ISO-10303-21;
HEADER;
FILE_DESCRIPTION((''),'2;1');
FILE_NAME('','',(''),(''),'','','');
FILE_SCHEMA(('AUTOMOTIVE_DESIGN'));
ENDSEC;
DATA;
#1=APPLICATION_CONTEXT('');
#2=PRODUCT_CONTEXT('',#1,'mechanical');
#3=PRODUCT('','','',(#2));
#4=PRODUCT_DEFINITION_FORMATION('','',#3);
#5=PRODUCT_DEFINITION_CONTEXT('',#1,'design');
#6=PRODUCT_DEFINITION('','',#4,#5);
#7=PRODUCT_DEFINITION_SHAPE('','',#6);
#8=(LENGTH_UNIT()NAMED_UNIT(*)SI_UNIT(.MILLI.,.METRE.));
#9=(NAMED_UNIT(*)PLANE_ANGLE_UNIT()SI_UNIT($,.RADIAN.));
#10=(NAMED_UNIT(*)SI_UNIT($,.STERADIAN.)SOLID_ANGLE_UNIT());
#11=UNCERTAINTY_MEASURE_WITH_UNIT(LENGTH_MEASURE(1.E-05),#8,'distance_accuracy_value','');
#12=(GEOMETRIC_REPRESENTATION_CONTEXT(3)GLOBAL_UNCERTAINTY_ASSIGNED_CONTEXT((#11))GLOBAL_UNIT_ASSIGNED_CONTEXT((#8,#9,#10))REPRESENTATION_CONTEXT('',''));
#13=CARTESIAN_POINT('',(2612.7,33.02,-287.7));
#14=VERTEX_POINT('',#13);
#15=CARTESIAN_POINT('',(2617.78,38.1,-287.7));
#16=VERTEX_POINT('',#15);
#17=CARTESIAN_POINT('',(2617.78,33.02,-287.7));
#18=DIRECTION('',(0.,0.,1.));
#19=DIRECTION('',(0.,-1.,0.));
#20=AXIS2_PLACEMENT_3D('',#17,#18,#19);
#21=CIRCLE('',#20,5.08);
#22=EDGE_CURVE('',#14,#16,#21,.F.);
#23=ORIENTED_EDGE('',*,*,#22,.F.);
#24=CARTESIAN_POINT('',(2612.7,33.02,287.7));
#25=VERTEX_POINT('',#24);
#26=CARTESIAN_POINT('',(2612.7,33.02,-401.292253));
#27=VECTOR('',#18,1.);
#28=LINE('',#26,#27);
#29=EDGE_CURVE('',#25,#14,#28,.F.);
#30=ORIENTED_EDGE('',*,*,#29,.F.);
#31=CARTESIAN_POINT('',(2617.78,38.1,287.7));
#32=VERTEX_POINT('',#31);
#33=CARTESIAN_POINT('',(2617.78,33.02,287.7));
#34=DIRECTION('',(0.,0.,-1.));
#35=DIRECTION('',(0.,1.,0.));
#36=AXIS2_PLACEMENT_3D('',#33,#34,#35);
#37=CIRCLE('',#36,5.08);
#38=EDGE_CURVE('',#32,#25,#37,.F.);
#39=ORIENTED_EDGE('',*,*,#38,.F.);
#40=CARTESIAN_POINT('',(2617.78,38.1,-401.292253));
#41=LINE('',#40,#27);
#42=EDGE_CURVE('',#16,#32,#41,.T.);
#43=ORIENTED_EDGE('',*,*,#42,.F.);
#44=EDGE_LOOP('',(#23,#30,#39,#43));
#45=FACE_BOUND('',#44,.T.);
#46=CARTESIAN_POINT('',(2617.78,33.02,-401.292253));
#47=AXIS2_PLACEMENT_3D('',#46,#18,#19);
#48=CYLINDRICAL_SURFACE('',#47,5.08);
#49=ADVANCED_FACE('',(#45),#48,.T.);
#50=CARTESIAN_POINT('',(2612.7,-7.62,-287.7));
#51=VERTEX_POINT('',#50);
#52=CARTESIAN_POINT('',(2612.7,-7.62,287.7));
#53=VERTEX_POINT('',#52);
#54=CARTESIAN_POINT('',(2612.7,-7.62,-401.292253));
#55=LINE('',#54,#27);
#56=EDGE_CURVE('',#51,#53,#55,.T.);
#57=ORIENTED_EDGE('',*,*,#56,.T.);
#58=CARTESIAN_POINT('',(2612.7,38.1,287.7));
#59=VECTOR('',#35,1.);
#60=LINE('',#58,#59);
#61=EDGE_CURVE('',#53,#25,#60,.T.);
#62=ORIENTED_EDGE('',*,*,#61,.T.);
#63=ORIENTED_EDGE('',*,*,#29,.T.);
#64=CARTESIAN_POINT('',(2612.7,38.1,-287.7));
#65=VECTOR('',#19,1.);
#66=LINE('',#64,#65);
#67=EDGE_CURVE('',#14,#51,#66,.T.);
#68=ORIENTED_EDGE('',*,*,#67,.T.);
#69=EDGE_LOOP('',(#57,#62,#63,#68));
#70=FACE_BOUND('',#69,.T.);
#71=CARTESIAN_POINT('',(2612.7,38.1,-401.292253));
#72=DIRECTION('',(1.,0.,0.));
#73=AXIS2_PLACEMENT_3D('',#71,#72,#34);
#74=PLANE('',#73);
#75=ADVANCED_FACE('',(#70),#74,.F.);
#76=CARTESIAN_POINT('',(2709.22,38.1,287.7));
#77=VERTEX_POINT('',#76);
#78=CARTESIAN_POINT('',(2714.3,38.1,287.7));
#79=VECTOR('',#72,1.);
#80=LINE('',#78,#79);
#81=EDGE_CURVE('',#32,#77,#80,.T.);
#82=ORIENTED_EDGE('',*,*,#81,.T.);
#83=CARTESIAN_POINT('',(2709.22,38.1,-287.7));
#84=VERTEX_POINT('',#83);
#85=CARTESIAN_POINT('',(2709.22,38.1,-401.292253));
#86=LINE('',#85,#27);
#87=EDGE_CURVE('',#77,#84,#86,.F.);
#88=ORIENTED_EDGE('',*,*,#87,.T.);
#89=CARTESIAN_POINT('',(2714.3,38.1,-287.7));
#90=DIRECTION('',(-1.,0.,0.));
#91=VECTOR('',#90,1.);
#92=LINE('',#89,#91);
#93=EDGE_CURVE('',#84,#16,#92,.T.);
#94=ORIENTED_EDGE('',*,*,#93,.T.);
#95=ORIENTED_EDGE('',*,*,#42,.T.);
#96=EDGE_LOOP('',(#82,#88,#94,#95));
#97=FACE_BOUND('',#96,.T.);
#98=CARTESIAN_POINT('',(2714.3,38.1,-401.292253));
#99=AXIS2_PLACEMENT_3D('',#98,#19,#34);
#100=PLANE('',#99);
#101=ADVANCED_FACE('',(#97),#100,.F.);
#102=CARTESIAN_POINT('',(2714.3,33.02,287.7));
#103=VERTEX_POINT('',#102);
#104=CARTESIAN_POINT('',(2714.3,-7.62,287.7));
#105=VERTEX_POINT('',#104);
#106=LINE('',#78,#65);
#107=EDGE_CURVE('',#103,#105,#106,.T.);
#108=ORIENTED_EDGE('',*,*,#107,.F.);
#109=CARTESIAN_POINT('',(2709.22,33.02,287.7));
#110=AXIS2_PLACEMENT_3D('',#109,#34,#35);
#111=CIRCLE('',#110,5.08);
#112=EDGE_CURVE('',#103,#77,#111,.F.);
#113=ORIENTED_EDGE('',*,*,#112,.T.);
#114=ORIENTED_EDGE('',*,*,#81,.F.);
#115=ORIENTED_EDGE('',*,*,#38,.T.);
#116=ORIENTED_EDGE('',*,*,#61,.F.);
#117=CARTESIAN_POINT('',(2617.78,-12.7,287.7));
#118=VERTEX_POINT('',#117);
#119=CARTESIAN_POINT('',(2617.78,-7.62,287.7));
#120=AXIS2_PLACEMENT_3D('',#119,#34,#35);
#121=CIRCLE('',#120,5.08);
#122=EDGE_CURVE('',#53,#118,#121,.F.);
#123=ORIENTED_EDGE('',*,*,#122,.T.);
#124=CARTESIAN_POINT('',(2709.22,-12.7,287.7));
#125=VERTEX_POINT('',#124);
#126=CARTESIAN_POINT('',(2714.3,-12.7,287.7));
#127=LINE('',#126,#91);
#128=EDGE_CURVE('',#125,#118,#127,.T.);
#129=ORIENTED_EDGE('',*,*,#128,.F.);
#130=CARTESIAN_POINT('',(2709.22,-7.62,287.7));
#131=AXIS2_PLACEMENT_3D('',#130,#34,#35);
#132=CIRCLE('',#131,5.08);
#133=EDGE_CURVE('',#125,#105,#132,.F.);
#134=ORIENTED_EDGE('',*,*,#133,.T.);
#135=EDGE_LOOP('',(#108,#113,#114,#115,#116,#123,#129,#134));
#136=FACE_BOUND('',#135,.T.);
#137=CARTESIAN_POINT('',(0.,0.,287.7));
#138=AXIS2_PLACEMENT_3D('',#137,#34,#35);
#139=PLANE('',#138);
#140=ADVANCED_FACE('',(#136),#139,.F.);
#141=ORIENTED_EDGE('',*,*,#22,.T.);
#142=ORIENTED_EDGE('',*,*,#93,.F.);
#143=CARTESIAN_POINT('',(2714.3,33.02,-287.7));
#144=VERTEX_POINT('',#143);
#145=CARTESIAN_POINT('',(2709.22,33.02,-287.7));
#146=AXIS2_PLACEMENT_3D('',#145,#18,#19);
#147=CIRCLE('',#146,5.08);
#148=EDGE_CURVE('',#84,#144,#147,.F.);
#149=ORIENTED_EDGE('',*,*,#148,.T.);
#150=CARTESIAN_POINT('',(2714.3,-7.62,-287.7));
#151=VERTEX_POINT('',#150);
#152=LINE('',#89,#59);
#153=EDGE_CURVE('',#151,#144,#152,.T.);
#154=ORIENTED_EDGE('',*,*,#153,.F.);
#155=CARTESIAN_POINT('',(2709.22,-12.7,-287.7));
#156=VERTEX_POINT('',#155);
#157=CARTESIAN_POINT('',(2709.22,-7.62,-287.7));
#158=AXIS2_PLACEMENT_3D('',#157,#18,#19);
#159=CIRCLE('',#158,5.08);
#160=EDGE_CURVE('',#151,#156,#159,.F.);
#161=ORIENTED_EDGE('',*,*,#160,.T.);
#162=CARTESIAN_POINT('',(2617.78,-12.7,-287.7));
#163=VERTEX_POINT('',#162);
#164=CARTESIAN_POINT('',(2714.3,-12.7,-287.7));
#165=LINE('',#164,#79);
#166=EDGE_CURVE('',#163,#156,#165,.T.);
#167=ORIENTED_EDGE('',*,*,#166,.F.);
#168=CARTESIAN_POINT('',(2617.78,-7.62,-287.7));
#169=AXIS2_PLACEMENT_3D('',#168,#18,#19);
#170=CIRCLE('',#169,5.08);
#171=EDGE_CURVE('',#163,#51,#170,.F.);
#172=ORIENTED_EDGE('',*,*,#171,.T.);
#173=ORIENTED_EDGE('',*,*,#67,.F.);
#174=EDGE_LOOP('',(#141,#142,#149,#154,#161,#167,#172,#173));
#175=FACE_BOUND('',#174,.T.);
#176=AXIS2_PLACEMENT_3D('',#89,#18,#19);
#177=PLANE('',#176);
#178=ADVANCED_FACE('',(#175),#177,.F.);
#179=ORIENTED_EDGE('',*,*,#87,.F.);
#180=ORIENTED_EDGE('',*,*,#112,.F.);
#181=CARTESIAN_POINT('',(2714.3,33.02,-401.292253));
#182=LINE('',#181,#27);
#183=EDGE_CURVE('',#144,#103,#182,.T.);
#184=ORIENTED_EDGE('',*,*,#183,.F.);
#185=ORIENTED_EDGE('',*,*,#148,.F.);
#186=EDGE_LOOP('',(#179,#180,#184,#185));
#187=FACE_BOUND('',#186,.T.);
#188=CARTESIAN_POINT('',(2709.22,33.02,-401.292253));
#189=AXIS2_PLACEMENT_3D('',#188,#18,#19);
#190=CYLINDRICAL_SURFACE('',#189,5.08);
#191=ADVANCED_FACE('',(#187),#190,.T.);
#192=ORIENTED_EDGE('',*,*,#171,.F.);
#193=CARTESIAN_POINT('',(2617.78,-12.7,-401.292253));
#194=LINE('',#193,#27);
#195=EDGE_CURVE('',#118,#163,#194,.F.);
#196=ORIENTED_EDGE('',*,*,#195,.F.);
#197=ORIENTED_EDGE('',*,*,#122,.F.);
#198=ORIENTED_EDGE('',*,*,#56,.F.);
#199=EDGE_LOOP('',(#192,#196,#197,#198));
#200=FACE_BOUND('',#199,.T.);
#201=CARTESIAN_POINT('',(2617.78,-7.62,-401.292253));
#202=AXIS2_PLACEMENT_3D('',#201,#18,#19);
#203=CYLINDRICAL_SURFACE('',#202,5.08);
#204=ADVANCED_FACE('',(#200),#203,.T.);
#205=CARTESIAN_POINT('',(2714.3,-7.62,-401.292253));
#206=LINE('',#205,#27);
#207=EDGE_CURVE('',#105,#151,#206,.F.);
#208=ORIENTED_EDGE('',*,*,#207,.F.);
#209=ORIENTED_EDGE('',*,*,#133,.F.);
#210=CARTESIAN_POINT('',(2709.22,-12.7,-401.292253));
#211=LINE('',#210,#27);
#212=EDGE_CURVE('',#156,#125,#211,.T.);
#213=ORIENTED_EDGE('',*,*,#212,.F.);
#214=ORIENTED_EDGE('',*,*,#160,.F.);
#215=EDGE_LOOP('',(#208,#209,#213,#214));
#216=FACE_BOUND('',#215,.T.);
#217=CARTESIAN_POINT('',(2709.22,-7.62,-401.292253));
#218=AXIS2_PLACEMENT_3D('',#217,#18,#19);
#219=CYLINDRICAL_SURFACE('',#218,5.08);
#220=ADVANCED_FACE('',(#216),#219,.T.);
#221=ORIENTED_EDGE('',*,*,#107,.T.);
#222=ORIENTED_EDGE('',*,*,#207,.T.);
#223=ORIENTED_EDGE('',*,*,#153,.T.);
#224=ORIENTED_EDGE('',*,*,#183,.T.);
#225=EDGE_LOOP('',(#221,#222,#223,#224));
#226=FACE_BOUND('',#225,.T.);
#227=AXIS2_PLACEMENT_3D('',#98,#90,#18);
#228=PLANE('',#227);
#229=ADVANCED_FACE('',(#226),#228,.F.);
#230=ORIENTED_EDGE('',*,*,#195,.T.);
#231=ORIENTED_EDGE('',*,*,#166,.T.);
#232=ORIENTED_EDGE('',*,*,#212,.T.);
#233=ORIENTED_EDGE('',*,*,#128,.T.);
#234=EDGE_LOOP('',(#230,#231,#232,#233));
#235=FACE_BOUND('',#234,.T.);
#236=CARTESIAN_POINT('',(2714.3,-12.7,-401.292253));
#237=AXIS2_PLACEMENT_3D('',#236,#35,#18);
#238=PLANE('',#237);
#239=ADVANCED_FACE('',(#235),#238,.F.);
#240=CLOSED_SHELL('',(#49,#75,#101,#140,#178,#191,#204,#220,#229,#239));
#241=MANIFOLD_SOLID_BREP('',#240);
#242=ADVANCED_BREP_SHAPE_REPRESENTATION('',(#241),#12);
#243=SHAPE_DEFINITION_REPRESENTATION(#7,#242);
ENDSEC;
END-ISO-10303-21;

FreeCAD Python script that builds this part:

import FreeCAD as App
import Part
import Sketcher
from FreeCAD import Vector
Q = App.Units.Quantity


def edges_at(feature, points):
    """Names of the edges that pass closest to the given points."""
    edges = feature.Shape.Edges
    near = lambda p: min(range(len(edges)), key=lambda i: edges[i].distToShape(Part.Vertex(*p))[0])
    return sorted({f"Edge{near(p) + 1}" for p in points})


def add_polygon(sketch, points):
    """Adds a closed chain of lines whose ends are joined by coincident constraints."""
    first, n = sketch.GeometryCount, len(points)
    for a, b in zip(points, points[1:] + points[:1]):
        sketch.addGeometry(Part.LineSegment(App.Vector(*a, 0), App.Vector(*b, 0)), False)
    for i in range(n):
        sketch.addConstraint(Sketcher.Constraint("Coincident", first + i, 2, first + (i + 1) % n, 1))

doc = App.newDocument("Part")
body = doc.addObject("PartDesign::Body", "Body")

# Sketch on XY plane
sketch1 = body.newObject("Sketcher::SketchObject", "Sketch")
sketch1.AttachmentSupport = (doc.getObject("XY_Plane"), [""])
sketch1.MapMode = "FlatFace"
sketch1.AttachmentOffset = App.Placement(Vector(0, 0, 287.7), App.Rotation())
add_polygon(sketch1, [(2714, 38), (2714, -13), (2613, -13), (2613, 38)])  # lines 0-3
sketch1.addConstraint([
    Sketcher.Constraint("Vertical", 0),
    Sketcher.Constraint("Horizontal", 1),
    Sketcher.Constraint("Vertical", 2),
    Sketcher.Constraint("Horizontal", 3),
    Sketcher.Constraint("DistanceX", 1, 2, 1, 1, Q("4 in")),
    Sketcher.Constraint("DistanceY", 0, 2, 0, 1, Q("2 in")),
    Sketcher.Constraint("DistanceY", 0, 2, -1, 1, Q("0.5 in")),
    Sketcher.Constraint("DistanceX", -1, 1, 0, 2, 2714.3),
])
pad1 = body.newObject("PartDesign::Pad", "Pad")
pad1.Profile = sketch1
pad1.Length = 575.4
pad1.Reversed = True
doc.recompute()

fillet = body.newObject("PartDesign::Fillet", "Fillet")
fillet.Base = (pad1, edges_at(pad1, [
    (2714.3, 38.1, 0),
    (2612.7, 38.1, 0),
    (2612.7, -12.7, 0),
    (2714.3, -12.7, 0),
]))
fillet.Radius = Q("0.2 in")

doc.recompute()
